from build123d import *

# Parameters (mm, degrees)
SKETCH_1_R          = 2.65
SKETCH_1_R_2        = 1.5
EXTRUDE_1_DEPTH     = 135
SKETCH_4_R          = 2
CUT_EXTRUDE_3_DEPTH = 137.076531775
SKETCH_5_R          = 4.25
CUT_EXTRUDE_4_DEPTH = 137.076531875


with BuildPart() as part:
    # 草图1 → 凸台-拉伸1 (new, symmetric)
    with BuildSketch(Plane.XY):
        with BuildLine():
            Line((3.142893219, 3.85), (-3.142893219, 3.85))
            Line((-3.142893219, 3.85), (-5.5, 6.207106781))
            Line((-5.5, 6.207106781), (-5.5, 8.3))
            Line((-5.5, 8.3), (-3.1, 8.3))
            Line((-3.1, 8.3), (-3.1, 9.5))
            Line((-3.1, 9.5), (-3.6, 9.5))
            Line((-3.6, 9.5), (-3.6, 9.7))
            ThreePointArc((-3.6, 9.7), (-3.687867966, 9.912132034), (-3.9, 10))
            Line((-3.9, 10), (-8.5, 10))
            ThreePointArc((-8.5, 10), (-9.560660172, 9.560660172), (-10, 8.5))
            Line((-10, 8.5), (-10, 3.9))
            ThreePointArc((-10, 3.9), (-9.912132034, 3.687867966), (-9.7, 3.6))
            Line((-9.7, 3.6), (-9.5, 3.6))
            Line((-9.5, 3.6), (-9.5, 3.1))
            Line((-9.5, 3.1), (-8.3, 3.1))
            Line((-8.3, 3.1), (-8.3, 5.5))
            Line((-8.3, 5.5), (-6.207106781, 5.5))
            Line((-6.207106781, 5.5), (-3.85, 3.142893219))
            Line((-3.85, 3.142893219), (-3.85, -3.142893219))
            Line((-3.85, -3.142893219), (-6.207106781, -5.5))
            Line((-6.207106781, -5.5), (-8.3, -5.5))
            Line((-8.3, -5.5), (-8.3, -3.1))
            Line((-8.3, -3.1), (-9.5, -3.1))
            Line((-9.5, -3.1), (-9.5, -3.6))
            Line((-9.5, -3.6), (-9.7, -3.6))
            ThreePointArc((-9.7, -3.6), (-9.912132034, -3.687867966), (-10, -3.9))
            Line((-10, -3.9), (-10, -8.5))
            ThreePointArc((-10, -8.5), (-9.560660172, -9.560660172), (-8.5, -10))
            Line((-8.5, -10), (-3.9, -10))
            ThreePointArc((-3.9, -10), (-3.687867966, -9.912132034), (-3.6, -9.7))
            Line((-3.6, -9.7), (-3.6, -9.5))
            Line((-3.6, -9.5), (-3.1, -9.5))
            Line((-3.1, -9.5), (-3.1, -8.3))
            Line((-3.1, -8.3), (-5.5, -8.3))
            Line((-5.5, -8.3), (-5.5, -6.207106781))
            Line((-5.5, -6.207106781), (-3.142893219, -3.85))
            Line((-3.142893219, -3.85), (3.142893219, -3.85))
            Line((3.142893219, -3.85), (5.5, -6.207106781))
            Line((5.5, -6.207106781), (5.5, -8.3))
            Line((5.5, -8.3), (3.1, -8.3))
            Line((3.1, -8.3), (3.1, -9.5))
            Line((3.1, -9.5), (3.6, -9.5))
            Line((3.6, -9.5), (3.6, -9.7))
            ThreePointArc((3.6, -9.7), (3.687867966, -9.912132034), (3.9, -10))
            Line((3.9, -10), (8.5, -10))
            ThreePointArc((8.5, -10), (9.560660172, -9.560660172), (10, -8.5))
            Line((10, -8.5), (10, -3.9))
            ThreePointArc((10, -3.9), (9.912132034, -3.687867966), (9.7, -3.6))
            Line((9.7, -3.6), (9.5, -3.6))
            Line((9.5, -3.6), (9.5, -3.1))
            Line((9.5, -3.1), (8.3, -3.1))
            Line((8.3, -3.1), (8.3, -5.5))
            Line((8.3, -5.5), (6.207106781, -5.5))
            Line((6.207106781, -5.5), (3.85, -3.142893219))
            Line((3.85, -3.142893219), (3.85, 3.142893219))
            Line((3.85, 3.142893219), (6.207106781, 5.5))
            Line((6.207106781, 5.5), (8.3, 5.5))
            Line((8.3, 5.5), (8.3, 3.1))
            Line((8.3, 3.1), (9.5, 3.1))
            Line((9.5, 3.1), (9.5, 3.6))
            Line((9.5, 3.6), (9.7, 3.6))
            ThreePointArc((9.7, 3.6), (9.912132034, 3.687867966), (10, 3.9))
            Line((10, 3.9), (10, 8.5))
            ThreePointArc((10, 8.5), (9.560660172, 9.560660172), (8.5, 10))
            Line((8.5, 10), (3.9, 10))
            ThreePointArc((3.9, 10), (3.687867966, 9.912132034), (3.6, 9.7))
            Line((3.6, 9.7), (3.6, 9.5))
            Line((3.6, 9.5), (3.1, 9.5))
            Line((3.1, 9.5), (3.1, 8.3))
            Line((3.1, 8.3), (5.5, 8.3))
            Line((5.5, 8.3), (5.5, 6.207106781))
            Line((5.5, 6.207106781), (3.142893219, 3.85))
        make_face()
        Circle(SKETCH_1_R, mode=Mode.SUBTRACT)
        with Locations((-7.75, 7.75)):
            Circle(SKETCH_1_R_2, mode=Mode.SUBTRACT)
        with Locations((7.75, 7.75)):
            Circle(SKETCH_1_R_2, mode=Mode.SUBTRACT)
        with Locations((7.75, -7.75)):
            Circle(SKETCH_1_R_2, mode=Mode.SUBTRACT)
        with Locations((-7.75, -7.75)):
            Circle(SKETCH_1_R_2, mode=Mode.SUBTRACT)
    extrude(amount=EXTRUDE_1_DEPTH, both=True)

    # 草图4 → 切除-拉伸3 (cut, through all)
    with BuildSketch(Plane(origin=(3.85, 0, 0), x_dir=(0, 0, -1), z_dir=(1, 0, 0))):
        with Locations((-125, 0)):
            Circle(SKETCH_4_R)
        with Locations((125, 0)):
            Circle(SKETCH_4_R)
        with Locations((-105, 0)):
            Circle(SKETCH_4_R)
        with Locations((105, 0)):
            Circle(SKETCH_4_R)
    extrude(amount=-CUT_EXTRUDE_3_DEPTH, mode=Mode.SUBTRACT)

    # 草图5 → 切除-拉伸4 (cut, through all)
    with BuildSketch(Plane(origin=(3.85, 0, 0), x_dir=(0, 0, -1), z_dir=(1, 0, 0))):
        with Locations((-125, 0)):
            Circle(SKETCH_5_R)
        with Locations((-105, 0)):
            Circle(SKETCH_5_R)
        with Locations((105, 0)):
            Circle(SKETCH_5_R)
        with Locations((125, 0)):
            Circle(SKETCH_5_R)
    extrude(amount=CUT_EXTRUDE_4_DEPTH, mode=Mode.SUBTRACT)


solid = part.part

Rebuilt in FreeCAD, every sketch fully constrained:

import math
import FreeCAD as App
import Part
import Sketcher
from FreeCAD import Vector

doc = App.newDocument("Part")
params = doc.addObject("Spreadsheet::Sheet", "Params")
for row, (alias, value) in enumerate([
    ("sketch1_diameter", "3 mm"),
    ("sketch1_diameter2", "5.3 mm"),
    ("sketch1_radius", "0.3 mm"),
    ("sketch1_width", "2.4 mm"),
    ("sketch1_width2", "0.5 mm"),
    ("pad1_length", "270 mm"),
    ("sketch2_diameter", "4 mm"),
    ("sketch3_diameter", "8.5 mm"),
], start=1):
    params.set(f"A{row}", alias)
    params.set(f"B{row}", "=" + value)
    params.setAlias(f"B{row}", alias)

body = doc.addObject("PartDesign::Body", "Body")

# Sketch on XY plane
sketch1 = body.newObject("Sketcher::SketchObject", "Sketch")
sketch1.AttachmentSupport = (doc.getObject("XY_Plane"), [""])
sketch1.MapMode = "FlatFace"
sketch1.addGeometry([
    Part.LineSegment(Vector(3.14, 3.85, 0), Vector(-3.14, 3.85, 0)),  # 0
    Part.LineSegment(Vector(-3.14, 3.85, 0), Vector(-5.5, 6.21, 0)),  # 1
    Part.LineSegment(Vector(-5.5, 6.21, 0), Vector(-5.5, 8.3, 0)),  # 2
    Part.LineSegment(Vector(-5.5, 8.3, 0), Vector(-3.1, 8.3, 0)),  # 3
    Part.LineSegment(Vector(-3.1, 8.3, 0), Vector(-3.1, 9.5, 0)),  # 4
    Part.LineSegment(Vector(-3.1, 9.5, 0), Vector(-3.6, 9.5, 0)),  # 5
    Part.LineSegment(Vector(-3.6, 9.5, 0), Vector(-3.6, 9.7, 0)),  # 6
    Part.ArcOfCircle(Part.Circle(Vector(-3.9, 9.7, 0), Vector(0, 0, 1), 0.3), math.radians(0), math.radians(90)),  # 7
    Part.LineSegment(Vector(-3.9, 10, 0), Vector(-8.5, 10, 0)),  # 8
    Part.ArcOfCircle(Part.Circle(Vector(-8.5, 8.5, 0), Vector(0, 0, 1), 1.5), math.radians(90), math.radians(180)),  # 9
    Part.LineSegment(Vector(-10, 8.5, 0), Vector(-10, 3.9, 0)),  # 10
    Part.ArcOfCircle(Part.Circle(Vector(-9.7, 3.9, 0), Vector(0, 0, 1), 0.3), math.radians(-180), math.radians(-90)),  # 11
    Part.LineSegment(Vector(-9.7, 3.6, 0), Vector(-9.5, 3.6, 0)),  # 12
    Part.LineSegment(Vector(-9.5, 3.6, 0), Vector(-9.5, 3.1, 0)),  # 13
    Part.LineSegment(Vector(-9.5, 3.1, 0), Vector(-8.3, 3.1, 0)),  # 14
    Part.LineSegment(Vector(-8.3, 3.1, 0), Vector(-8.3, 5.5, 0)),  # 15
    Part.LineSegment(Vector(-8.3, 5.5, 0), Vector(-6.21, 5.5, 0)),  # 16
    Part.LineSegment(Vector(-6.21, 5.5, 0), Vector(-3.85, 3.14, 0)),  # 17
    Part.LineSegment(Vector(-3.85, 3.14, 0), Vector(-3.85, -3.14, 0)),  # 18
    Part.LineSegment(Vector(-3.85, -3.14, 0), Vector(-6.21, -5.5, 0)),  # 19
    Part.LineSegment(Vector(-6.21, -5.5, 0), Vector(-8.3, -5.5, 0)),  # 20
    Part.LineSegment(Vector(-8.3, -5.5, 0), Vector(-8.3, -3.1, 0)),  # 21
    Part.LineSegment(Vector(-8.3, -3.1, 0), Vector(-9.5, -3.1, 0)),  # 22
    Part.LineSegment(Vector(-9.5, -3.1, 0), Vector(-9.5, -3.6, 0)),  # 23
    Part.LineSegment(Vector(-9.5, -3.6, 0), Vector(-9.7, -3.6, 0)),  # 24
    Part.ArcOfCircle(Part.Circle(Vector(-9.7, -3.9, 0), Vector(0, 0, 1), 0.3), math.radians(90), math.radians(180)),  # 25
    Part.LineSegment(Vector(-10, -3.9, 0), Vector(-10, -8.5, 0)),  # 26
    Part.ArcOfCircle(Part.Circle(Vector(-8.5, -8.5, 0), Vector(0, 0, 1), 1.5), math.radians(180), math.radians(270)),  # 27
    Part.LineSegment(Vector(-8.5, -10, 0), Vector(-3.9, -10, 0)),  # 28
    Part.ArcOfCircle(Part.Circle(Vector(-3.9, -9.7, 0), Vector(0, 0, 1), 0.3), math.radians(-90), math.radians(0)),  # 29
    Part.LineSegment(Vector(-3.6, -9.7, 0), Vector(-3.6, -9.5, 0)),  # 30
    Part.LineSegment(Vector(-3.6, -9.5, 0), Vector(-3.1, -9.5, 0)),  # 31
    Part.LineSegment(Vector(-3.1, -9.5, 0), Vector(-3.1, -8.3, 0)),  # 32
    Part.LineSegment(Vector(-3.1, -8.3, 0), Vector(-5.5, -8.3, 0)),  # 33
    Part.LineSegment(Vector(-5.5, -8.3, 0), Vector(-5.5, -6.21, 0)),  # 34
    Part.LineSegment(Vector(-5.5, -6.21, 0), Vector(-3.14, -3.85, 0)),  # 35
    Part.LineSegment(Vector(-3.14, -3.85, 0), Vector(3.14, -3.85, 0)),  # 36
    Part.LineSegment(Vector(3.14, -3.85, 0), Vector(5.5, -6.21, 0)),  # 37
    Part.LineSegment(Vector(5.5, -6.21, 0), Vector(5.5, -8.3, 0)),  # 38
    Part.LineSegment(Vector(5.5, -8.3, 0), Vector(3.1, -8.3, 0)),  # 39
    Part.LineSegment(Vector(3.1, -8.3, 0), Vector(3.1, -9.5, 0)),  # 40
    Part.LineSegment(Vector(3.1, -9.5, 0), Vector(3.6, -9.5, 0)),  # 41
    Part.LineSegment(Vector(3.6, -9.5, 0), Vector(3.6, -9.7, 0)),  # 42
    Part.ArcOfCircle(Part.Circle(Vector(3.9, -9.7, 0), Vector(0, 0, 1), 0.3), math.radians(-180), math.radians(-90)),  # 43
    Part.LineSegment(Vector(3.9, -10, 0), Vector(8.5, -10, 0)),  # 44
    Part.ArcOfCircle(Part.Circle(Vector(8.5, -8.5, 0), Vector(0, 0, 1), 1.5), math.radians(-90), math.radians(0)),  # 45
    Part.LineSegment(Vector(10, -8.5, 0), Vector(10, -3.9, 0)),  # 46
    Part.ArcOfCircle(Part.Circle(Vector(9.7, -3.9, 0), Vector(0, 0, 1), 0.3), math.radians(0), math.radians(90)),  # 47
    Part.LineSegment(Vector(9.7, -3.6, 0), Vector(9.5, -3.6, 0)),  # 48
    Part.LineSegment(Vector(9.5, -3.6, 0), Vector(9.5, -3.1, 0)),  # 49
    Part.LineSegment(Vector(9.5, -3.1, 0), Vector(8.3, -3.1, 0)),  # 50
    Part.LineSegment(Vector(8.3, -3.1, 0), Vector(8.3, -5.5, 0)),  # 51
    Part.LineSegment(Vector(8.3, -5.5, 0), Vector(6.21, -5.5, 0)),  # 52
    Part.LineSegment(Vector(6.21, -5.5, 0), Vector(3.85, -3.14, 0)),  # 53
    Part.LineSegment(Vector(3.85, -3.14, 0), Vector(3.85, 3.14, 0)),  # 54
    Part.LineSegment(Vector(3.85, 3.14, 0), Vector(6.21, 5.5, 0)),  # 55
    Part.LineSegment(Vector(6.21, 5.5, 0), Vector(8.3, 5.5, 0)),  # 56
    Part.LineSegment(Vector(8.3, 5.5, 0), Vector(8.3, 3.1, 0)),  # 57
    Part.LineSegment(Vector(8.3, 3.1, 0), Vector(9.5, 3.1, 0)),  # 58
    Part.LineSegment(Vector(9.5, 3.1, 0), Vector(9.5, 3.6, 0)),  # 59
    Part.LineSegment(Vector(9.5, 3.6, 0), Vector(9.7, 3.6, 0)),  # 60
    Part.ArcOfCircle(Part.Circle(Vector(9.7, 3.9, 0), Vector(0, 0, 1), 0.3), math.radians(-90), math.radians(0)),  # 61
    Part.LineSegment(Vector(10, 3.9, 0), Vector(10, 8.5, 0)),  # 62
    Part.ArcOfCircle(Part.Circle(Vector(8.5, 8.5, 0), Vector(0, 0, 1), 1.5), math.radians(0), math.radians(90)),  # 63
    Part.LineSegment(Vector(8.5, 10, 0), Vector(3.9, 10, 0)),  # 64
    Part.ArcOfCircle(Part.Circle(Vector(3.9, 9.7, 0), Vector(0, 0, 1), 0.3), math.radians(90), math.radians(180)),  # 65
    Part.LineSegment(Vector(3.6, 9.7, 0), Vector(3.6, 9.5, 0)),  # 66
    Part.LineSegment(Vector(3.6, 9.5, 0), Vector(3.1, 9.5, 0)),  # 67
    Part.LineSegment(Vector(3.1, 9.5, 0), Vector(3.1, 8.3, 0)),  # 68
    Part.LineSegment(Vector(3.1, 8.3, 0), Vector(5.5, 8.3, 0)),  # 69
    Part.LineSegment(Vector(5.5, 8.3, 0), Vector(5.5, 6.21, 0)),  # 70
    Part.LineSegment(Vector(5.5, 6.21, 0), Vector(3.14, 3.85, 0)),  # 71
    Part.Circle(Vector(-7.75, -7.75, 0), Vector(0, 0, 1), 1.5),  # 72
    Part.Circle(Vector(7.75, -7.75, 0), Vector(0, 0, 1), 1.5),  # 73
    Part.Circle(Vector(-7.75, 7.75, 0), Vector(0, 0, 1), 1.5),  # 74
    Part.Circle(Vector(0, 0, 0), Vector(0, 0, 1), 2.65),  # 75
    Part.Circle(Vector(7.75, 7.75, 0), Vector(0, 0, 1), 1.5),  # 76
], False)
sketch1.addConstraint([
    Sketcher.Constraint("Coincident", 0, 2, 1, 1),
    Sketcher.Constraint("Coincident", 1, 2, 2, 1),
    Sketcher.Constraint("Coincident", 2, 2, 3, 1),
    Sketcher.Constraint("Coincident", 3, 2, 4, 1),
    Sketcher.Constraint("Coincident", 4, 2, 5, 1),
    Sketcher.Constraint("Coincident", 5, 2, 6, 1),
    Sketcher.Constraint("Tangent", 6, 2, 7, 1),
    Sketcher.Constraint("Tangent", 7, 2, 8, 1),
    Sketcher.Constraint("Tangent", 8, 2, 9, 1),
    Sketcher.Constraint("Tangent", 9, 2, 10, 1),
    Sketcher.Constraint("Tangent", 10, 2, 11, 1),
    Sketcher.Constraint("Tangent", 11, 2, 12, 1),
    Sketcher.Constraint("Coincident", 12, 2, 13, 1),
    Sketcher.Constraint("Coincident", 13, 2, 14, 1),
    Sketcher.Constraint("Coincident", 14, 2, 15, 1),
    Sketcher.Constraint("Coincident", 15, 2, 16, 1),
    Sketcher.Constraint("Coincident", 16, 2, 17, 1),
    Sketcher.Constraint("Coincident", 17, 2, 18, 1),
    Sketcher.Constraint("Coincident", 18, 2, 19, 1),
    Sketcher.Constraint("Coincident", 19, 2, 20, 1),
    Sketcher.Constraint("Coincident", 20, 2, 21, 1),
    Sketcher.Constraint("Coincident", 21, 2, 22, 1),
    Sketcher.Constraint("Coincident", 22, 2, 23, 1),
    Sketcher.Constraint("Coincident", 23, 2, 24, 1),
    Sketcher.Constraint("Tangent", 24, 2, 25, 1),
    Sketcher.Constraint("Tangent", 25, 2, 26, 1),
    Sketcher.Constraint("Tangent", 26, 2, 27, 1),
    Sketcher.Constraint("Tangent", 27, 2, 28, 1),
    Sketcher.Constraint("Tangent", 28, 2, 29, 1),
    Sketcher.Constraint("Tangent", 29, 2, 30, 1),
    Sketcher.Constraint("Coincident", 30, 2, 31, 1),
    Sketcher.Constraint("Coincident", 31, 2, 32, 1),
    Sketcher.Constraint("Coincident", 32, 2, 33, 1),
    Sketcher.Constraint("Coincident", 33, 2, 34, 1),
    Sketcher.Constraint("Coincident", 34, 2, 35, 1),
    Sketcher.Constraint("Coincident", 35, 2, 36, 1),
    Sketcher.Constraint("Coincident", 36, 2, 37, 1),
    Sketcher.Constraint("Coincident", 37, 2, 38, 1),
    Sketcher.Constraint("Coincident", 38, 2, 39, 1),
    Sketcher.Constraint("Coincident", 39, 2, 40, 1),
    Sketcher.Constraint("Coincident", 40, 2, 41, 1),
    Sketcher.Constraint("Coincident", 41, 2, 42, 1),
    Sketcher.Constraint("Tangent", 42, 2, 43, 1),
    Sketcher.Constraint("Tangent", 43, 2, 44, 1),
    Sketcher.Constraint("Tangent", 44, 2, 45, 1),
    Sketcher.Constraint("Tangent", 45, 2, 46, 1),
    Sketcher.Constraint("Tangent", 46, 2, 47, 1),
    Sketcher.Constraint("Tangent", 47, 2, 48, 1),
    Sketcher.Constraint("Coincident", 48, 2, 49, 1),
    Sketcher.Constraint("Coincident", 49, 2, 50, 1),
    Sketcher.Constraint("Coincident", 50, 2, 51, 1),
    Sketcher.Constraint("Coincident", 51, 2, 52, 1),
    Sketcher.Constraint("Coincident", 52, 2, 53, 1),
    Sketcher.Constraint("Coincident", 53, 2, 54, 1),
    Sketcher.Constraint("Coincident", 54, 2, 55, 1),
    Sketcher.Constraint("Coincident", 55, 2, 56, 1),
    Sketcher.Constraint("Coincident", 56, 2, 57, 1),
    Sketcher.Constraint("Coincident", 57, 2, 58, 1),
    Sketcher.Constraint("Coincident", 58, 2, 59, 1),
    Sketcher.Constraint("Coincident", 59, 2, 60, 1),
    Sketcher.Constraint("Tangent", 60, 2, 61, 1),
    Sketcher.Constraint("Tangent", 61, 2, 62, 1),
    Sketcher.Constraint("Tangent", 62, 2, 63, 1),
    Sketcher.Constraint("Tangent", 63, 2, 64, 1),
    Sketcher.Constraint("Tangent", 64, 2, 65, 1),
    Sketcher.Constraint("Tangent", 65, 2, 66, 1),
    Sketcher.Constraint("Coincident", 66, 2, 67, 1),
    Sketcher.Constraint("Coincident", 67, 2, 68, 1),
    Sketcher.Constraint("Coincident", 68, 2, 69, 1),
    Sketcher.Constraint("Coincident", 69, 2, 70, 1),
    Sketcher.Constraint("Coincident", 70, 2, 71, 1),
    Sketcher.Constraint("Coincident", 71, 2, 0, 1),
    Sketcher.Constraint("Horizontal", 0),
    Sketcher.Constraint("Vertical", 2),
    Sketcher.Constraint("Horizontal", 3),
    Sketcher.Constraint("Vertical", 4),
    Sketcher.Constraint("Horizontal", 5),
    Sketcher.Constraint("Vertical", 6),
    Sketcher.Constraint("Horizontal", 8),
    Sketcher.Constraint("Vertical", 10),
    Sketcher.Constraint("Horizontal", 12),
    Sketcher.Constraint("Vertical", 13),
    Sketcher.Constraint("Horizontal", 14),
    Sketcher.Constraint("Vertical", 15),
    Sketcher.Constraint("Horizontal", 16),
    Sketcher.Constraint("Vertical", 18),
    Sketcher.Constraint("Horizontal", 20),
    Sketcher.Constraint("Vertical", 21),
    Sketcher.Constraint("Horizontal", 22),
    Sketcher.Constraint("Vertical", 23),
    Sketcher.Constraint("Horizontal", 24),
    Sketcher.Constraint("Vertical", 26),
    Sketcher.Constraint("Horizontal", 28),
    Sketcher.Constraint("Vertical", 30),
    Sketcher.Constraint("Horizontal", 31),
    Sketcher.Constraint("Vertical", 32),
    Sketcher.Constraint("Horizontal", 33),
    Sketcher.Constraint("Vertical", 34),
    Sketcher.Constraint("Horizontal", 36),
    Sketcher.Constraint("Vertical", 38),
    Sketcher.Constraint("Horizontal", 39),
    Sketcher.Constraint("Vertical", 40),
    Sketcher.Constraint("Horizontal", 41),
    Sketcher.Constraint("Vertical", 42),
    Sketcher.Constraint("Horizontal", 44),
    Sketcher.Constraint("Vertical", 46),
    Sketcher.Constraint("Horizontal", 48),
    Sketcher.Constraint("Vertical", 49),
    Sketcher.Constraint("Horizontal", 50),
    Sketcher.Constraint("Vertical", 51),
    Sketcher.Constraint("Horizontal", 52),
    Sketcher.Constraint("Vertical", 54),
    Sketcher.Constraint("Horizontal", 56),
    Sketcher.Constraint("Vertical", 57),
    Sketcher.Constraint("Horizontal", 58),
    Sketcher.Constraint("Vertical", 59),
    Sketcher.Constraint("Horizontal", 60),
    Sketcher.Constraint("Vertical", 62),
    Sketcher.Constraint("Horizontal", 64),
    Sketcher.Constraint("Vertical", 66),
    Sketcher.Constraint("Horizontal", 67),
    Sketcher.Constraint("Vertical", 68),
    Sketcher.Constraint("Horizontal", 69),
    Sketcher.Constraint("Vertical", 70),
    Sketcher.Constraint("Coincident", 75, 3, -1, 1),
    Sketcher.Constraint("Equal", 7, 11),
    Sketcher.Constraint("Equal", 11, 25),
    Sketcher.Constraint("Equal", 9, 27),
    Sketcher.Constraint("Equal", 25, 29),
    Sketcher.Constraint("Equal", 29, 43),
    Sketcher.Constraint("Equal", 27, 45),
    Sketcher.Constraint("Equal", 43, 47),
    Sketcher.Constraint("Equal", 47, 61),
    Sketcher.Constraint("Equal", 45, 63),
    Sketcher.Constraint("Equal", 61, 65),
    Sketcher.Constraint("Equal", 63, 72),
    Sketcher.Constraint("Equal", 72, 73),
    Sketcher.Constraint("Equal", 73, 74),
    Sketcher.Constraint("Equal", 74, 76),
    Sketcher.Constraint("Symmetric", 7, 3, 43, 3, -1, 1),
    Sketcher.Constraint("Symmetric", 11, 3, 47, 3, -1, 1),
    Sketcher.Constraint("Symmetric", 25, 3, 61, 3, -1, 1),
    Sketcher.Constraint("Symmetric", 29, 3, 65, 3, -1, 1),
    Sketcher.Constraint("Symmetric", 73, 3, 74, 3, -1, 1),
    Sketcher.Constraint("Symmetric", 72, 3, 76, 3, -1, 1),
    Sketcher.Constraint("Symmetric", 0, 2, 36, 2, -1, 1),
    Sketcher.Constraint("Symmetric", 1, 2, 37, 2, -1, 1),
    Sketcher.Constraint("Symmetric", 3, 2, 39, 2, -1, 1),
    Sketcher.Constraint("Symmetric", 13, 2, 49, 2, -1, 1),
    Sketcher.Constraint("Symmetric", 15, 2, 51, 2, -1, 1),
    Sketcher.Constraint("Symmetric", 17, 2, 53, 2, -1, 1),
    Sketcher.Constraint("Symmetric", 19, 2, 55, 2, -1, 1),
    Sketcher.Constraint("Symmetric", 21, 2, 57, 2, -1, 1),
    Sketcher.Constraint("Symmetric", 31, 2, 67, 2, -1, 1),
    Sketcher.Constraint("Symmetric", 33, 2, 69, 2, -1, 1),
    Sketcher.Constraint("Symmetric", 29, 3, 43, 3, -2),
    Sketcher.Constraint("Symmetric", 25, 3, 47, 3, -2),
    Sketcher.Constraint("Symmetric", 72, 3, 73, 3, -2),
    Sketcher.Constraint("Symmetric", 34, 2, 37, 2, -2),
    Sketcher.Constraint("Symmetric", 32, 2, 39, 2, -2),
    Sketcher.Constraint("Symmetric", 22, 2, 49, 2, -2),
    Sketcher.Constraint("Symmetric", 20, 2, 51, 2, -2),
    Sketcher.Constraint("Parallel", 1, 17),
    Sketcher.Constraint("Perpendicular", 17, 19),
    Sketcher.Constraint("Parallel", 19, 35),
    Sketcher.Constraint("Parallel", 37, 53),
    Sketcher.Constraint("Perpendicular", 53, 55),
    Sketcher.Constraint("Parallel", 55, 71),
    Sketcher.Constraint("Horizontal", 31, 2, 40, 2),
    Sketcher.Constraint("Horizontal", 18, 2, 53, 2),
    Sketcher.Constraint("Horizontal", 5, 2, 66, 2),
    Sketcher.Constraint("Horizontal", 1, 2, 70, 2),
    Sketcher.Constraint("Vertical", 16, 2, 19, 2),
    Sketcher.Constraint("Vertical", 49, 2, 58, 2),
    Sketcher.Constraint("Equal", 56, 2),
    Sketcher.Constraint("Equal", 58, 4),
    Sketcher.Constraint("Equal", 60, 6),
    Sketcher.Constraint("Equal", 64, 10),
    Sketcher.Constraint("Equal", 67, 13),
    Sketcher.Constraint("Equal", 69, 15),
    Sketcher.Constraint("Equal", 36, 18),
    Sketcher.Constraint("Equal", 1, 17),
    Sketcher.Constraint("Diameter", 72, 3.0),
    Sketcher.Constraint("Diameter", 75, 5.3),
    Sketcher.Constraint("Radius", 7, 0.3),
    Sketcher.Constraint("DistanceX", 3, 1, 3, 2, 2.4),
    Sketcher.Constraint("DistanceX", 5, 2, 5, 1, 0.5),
    Sketcher.Constraint("DistanceX", 8, 2, 8, 1, 4.6),
    Sketcher.Constraint("DistanceX", 12, 1, 12, 2, 0.2),
    Sketcher.Constraint("DistanceX", 14, 1, 14, 2, 1.2),
    Sketcher.Constraint("DistanceY", -1, 1, 7, 2, 10.0),
    Sketcher.Constraint("DistanceX", 72, 3, -1, 1, 7.75),
    Sketcher.Constraint("DistanceY", 72, 3, -1, 1, 7.75),
    Sketcher.Constraint("DistanceY", -1, 1, 0, 2, 3.85),
    Sketcher.Constraint("DistanceX", 0, 2, 0, 1, 6.285786),
])
sketch1.setExpression("Constraints[182]", "Params.sketch1_diameter")
sketch1.setExpression("Constraints[183]", "Params.sketch1_diameter2")
sketch1.setExpression("Constraints[184]", "Params.sketch1_radius")
sketch1.setExpression("Constraints[185]", "Params.sketch1_width")
sketch1.setExpression("Constraints[186]", "Params.sketch1_width2")
pad1 = body.newObject("PartDesign::Pad", "Pad")
pad1.Profile = sketch1
pad1.setExpression("Length", "Params.pad1_length")
pad1.Midplane = True

# Sketch on YZ plane
sketch2 = body.newObject("Sketcher::SketchObject", "Sketch001")
sketch2.AttachmentSupport = (doc.getObject("YZ_Plane"), [""])
sketch2.MapMode = "FlatFace"
sketch2.AttachmentOffset = App.Placement(Vector(0, 0, 3.85), App.Rotation())
sketch2.addGeometry([
    Part.Circle(Vector(0, 125, 0), Vector(0, 0, 1), 2),
    Part.Circle(Vector(0, -125, 0), Vector(0, 0, 1), 2),
    Part.Circle(Vector(0, 105, 0), Vector(0, 0, 1), 2),
    Part.Circle(Vector(0, -105, 0), Vector(0, 0, 1), 2),
], False)
sketch2.addConstraint([
    Sketcher.Constraint("Equal", 0, 1),
    Sketcher.Constraint("Equal", 1, 2),
    Sketcher.Constraint("Equal", 2, 3),
    Sketcher.Constraint("Symmetric", 0, 3, 1, 3, -1, 1),
    Sketcher.Constraint("Symmetric", 2, 3, 3, 3, -1, 1),
    Sketcher.Constraint("PointOnObject", 0, 3, -2),
    Sketcher.Constraint("PointOnObject", 2, 3, -2),
    Sketcher.Constraint("Diameter", 0, 4.0),
    Sketcher.Constraint("DistanceY", -1, 1, 0, 3, 125.0),
    Sketcher.Constraint("DistanceY", -1, 1, 2, 3, 105.0),
])
sketch2.setExpression("Constraints[7]", "Params.sketch2_diameter")
pocket1 = body.newObject("PartDesign::Pocket", "Pocket")
pocket1.Profile = sketch2
pocket1.Type = "ThroughAll"

# Sketch on YZ plane
sketch3 = body.newObject("Sketcher::SketchObject", "Sketch002")
sketch3.AttachmentSupport = (doc.getObject("YZ_Plane"), [""])
sketch3.MapMode = "FlatFace"
sketch3.AttachmentOffset = App.Placement(Vector(0, 0, 3.85), App.Rotation())
sketch3.addGeometry([
    Part.Circle(Vector(0, 125, 0), Vector(0, 0, 1), 4.2),
    Part.Circle(Vector(0, 105, 0), Vector(0, 0, 1), 4.2),
    Part.Circle(Vector(0, -105, 0), Vector(0, 0, 1), 4.2),
    Part.Circle(Vector(0, -125, 0), Vector(0, 0, 1), 4.2),
], False)
sketch3.addConstraint([
    Sketcher.Constraint("Equal", 0, 1),
    Sketcher.Constraint("Equal", 1, 2),
    Sketcher.Constraint("Equal", 2, 3),
    Sketcher.Constraint("Symmetric", 1, 3, 2, 3, -1, 1),
    Sketcher.Constraint("Symmetric", 0, 3, 3, 3, -1, 1),
    Sketcher.Constraint("PointOnObject", 0, 3, -2),
    Sketcher.Constraint("PointOnObject", 1, 3, -2),
    Sketcher.Constraint("Diameter", 0, 8.5),
    Sketcher.Constraint("DistanceY", -1, 1, 0, 3, 125.0),
    Sketcher.Constraint("DistanceY", -1, 1, 1, 3, 105.0),
])
sketch3.setExpression("Constraints[7]", "Params.sketch3_diameter")
pocket2 = body.newObject("PartDesign::Pocket", "Pocket001")
pocket2.Profile = sketch3
pocket2.Type = "ThroughAll"
pocket2.Reversed = True

doc.recompute()
